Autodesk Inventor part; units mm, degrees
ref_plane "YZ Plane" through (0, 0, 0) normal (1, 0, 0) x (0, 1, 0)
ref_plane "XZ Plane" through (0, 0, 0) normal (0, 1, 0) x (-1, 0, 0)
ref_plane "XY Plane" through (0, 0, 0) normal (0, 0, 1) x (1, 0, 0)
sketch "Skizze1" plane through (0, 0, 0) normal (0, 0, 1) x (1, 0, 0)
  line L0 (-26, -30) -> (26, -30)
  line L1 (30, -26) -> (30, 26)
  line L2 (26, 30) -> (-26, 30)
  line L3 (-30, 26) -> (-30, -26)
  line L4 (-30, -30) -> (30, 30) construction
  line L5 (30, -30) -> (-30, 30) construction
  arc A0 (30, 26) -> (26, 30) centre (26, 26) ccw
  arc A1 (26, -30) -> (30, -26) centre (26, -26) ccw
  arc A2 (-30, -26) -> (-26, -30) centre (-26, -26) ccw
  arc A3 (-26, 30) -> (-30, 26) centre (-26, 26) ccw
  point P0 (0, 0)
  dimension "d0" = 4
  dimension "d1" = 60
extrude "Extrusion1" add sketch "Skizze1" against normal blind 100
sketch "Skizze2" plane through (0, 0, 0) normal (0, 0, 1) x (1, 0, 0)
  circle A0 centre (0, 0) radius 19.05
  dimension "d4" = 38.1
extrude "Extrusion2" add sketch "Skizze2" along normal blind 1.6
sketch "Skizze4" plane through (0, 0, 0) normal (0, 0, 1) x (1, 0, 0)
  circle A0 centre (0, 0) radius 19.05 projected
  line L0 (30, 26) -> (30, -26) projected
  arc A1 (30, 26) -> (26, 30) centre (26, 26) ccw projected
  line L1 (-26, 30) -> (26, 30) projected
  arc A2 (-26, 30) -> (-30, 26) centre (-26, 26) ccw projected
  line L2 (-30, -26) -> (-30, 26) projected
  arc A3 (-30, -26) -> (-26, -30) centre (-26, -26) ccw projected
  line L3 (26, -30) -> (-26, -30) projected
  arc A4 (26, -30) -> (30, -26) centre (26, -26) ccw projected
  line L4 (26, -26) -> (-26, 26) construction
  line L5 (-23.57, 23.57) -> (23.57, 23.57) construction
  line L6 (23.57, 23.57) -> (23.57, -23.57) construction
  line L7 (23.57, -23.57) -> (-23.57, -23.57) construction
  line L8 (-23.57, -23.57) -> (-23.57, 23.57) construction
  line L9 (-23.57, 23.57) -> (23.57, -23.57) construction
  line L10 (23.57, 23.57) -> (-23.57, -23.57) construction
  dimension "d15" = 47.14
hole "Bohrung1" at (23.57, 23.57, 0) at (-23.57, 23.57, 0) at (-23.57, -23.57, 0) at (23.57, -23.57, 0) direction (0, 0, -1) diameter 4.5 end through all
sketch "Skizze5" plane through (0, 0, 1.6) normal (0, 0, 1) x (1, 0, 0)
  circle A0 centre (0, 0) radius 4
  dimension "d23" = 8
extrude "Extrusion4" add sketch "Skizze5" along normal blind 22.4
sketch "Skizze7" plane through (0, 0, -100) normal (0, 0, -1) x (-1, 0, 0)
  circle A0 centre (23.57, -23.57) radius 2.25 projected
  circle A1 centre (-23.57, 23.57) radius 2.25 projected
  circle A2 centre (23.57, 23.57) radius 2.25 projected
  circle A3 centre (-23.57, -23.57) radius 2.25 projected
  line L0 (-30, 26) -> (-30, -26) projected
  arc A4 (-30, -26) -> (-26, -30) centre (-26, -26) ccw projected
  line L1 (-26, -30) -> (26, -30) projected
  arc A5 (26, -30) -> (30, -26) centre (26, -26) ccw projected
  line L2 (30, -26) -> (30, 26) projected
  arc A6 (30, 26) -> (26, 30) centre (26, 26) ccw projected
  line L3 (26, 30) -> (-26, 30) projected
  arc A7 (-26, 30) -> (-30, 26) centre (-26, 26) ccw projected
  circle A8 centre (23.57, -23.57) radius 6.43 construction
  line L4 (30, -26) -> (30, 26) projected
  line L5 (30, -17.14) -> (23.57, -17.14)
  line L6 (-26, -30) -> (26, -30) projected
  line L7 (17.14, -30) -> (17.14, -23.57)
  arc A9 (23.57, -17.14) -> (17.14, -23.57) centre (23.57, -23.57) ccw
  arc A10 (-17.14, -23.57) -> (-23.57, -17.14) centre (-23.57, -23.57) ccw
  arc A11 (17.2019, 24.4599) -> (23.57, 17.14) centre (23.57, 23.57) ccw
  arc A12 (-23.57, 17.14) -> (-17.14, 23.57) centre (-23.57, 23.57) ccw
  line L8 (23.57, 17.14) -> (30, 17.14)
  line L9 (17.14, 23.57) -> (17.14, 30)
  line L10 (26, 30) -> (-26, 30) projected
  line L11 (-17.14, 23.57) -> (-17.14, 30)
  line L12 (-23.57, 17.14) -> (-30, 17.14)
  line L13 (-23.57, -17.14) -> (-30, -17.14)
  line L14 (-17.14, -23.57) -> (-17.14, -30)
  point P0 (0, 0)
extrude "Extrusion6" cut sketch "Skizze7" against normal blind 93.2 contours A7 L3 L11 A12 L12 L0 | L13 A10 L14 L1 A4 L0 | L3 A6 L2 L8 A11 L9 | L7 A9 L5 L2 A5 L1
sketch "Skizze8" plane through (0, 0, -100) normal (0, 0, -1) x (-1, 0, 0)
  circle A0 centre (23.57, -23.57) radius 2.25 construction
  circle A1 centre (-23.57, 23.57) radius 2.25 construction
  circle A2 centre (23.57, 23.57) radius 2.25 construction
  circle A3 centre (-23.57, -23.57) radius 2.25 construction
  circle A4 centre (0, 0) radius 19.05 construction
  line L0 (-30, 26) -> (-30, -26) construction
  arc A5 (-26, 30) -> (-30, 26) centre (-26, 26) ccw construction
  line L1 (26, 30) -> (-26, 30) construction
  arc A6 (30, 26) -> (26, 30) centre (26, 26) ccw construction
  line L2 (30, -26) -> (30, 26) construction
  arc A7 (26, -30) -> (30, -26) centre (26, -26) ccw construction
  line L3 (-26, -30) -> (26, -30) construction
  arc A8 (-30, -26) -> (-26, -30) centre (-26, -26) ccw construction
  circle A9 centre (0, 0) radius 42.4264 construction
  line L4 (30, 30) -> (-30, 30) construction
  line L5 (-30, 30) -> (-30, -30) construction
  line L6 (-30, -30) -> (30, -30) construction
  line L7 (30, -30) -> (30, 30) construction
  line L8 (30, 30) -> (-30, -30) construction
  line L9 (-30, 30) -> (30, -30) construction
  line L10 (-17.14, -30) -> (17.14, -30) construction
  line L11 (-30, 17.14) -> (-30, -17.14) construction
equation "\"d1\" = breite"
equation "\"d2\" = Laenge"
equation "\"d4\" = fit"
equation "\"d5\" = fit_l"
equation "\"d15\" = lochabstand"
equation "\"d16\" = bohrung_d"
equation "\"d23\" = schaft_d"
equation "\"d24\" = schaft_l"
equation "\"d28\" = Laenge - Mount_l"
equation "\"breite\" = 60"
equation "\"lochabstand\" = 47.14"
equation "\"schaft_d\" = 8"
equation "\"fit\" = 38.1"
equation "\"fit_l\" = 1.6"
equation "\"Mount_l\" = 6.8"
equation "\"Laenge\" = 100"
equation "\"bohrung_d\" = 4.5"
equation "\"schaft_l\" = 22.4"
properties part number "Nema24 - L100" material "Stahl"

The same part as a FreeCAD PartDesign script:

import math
import FreeCAD as App
import Part
import Sketcher

V = App.Vector

doc = App.newDocument("Part")
params = doc.addObject("Spreadsheet::Sheet", "Params")
for row, (alias, value) in enumerate([
    ("sketch1_radius", "4 mm"),
    ("sketch1_width", "52 mm"),
    ("pad1_length", "100 mm"),
    ("sketch2_diameter", "38.1 mm"),
    ("pad2_length", "1.6 mm"),
    ("sketch3_diameter", "4.5 mm"),
    ("hole_diameter", "4.5 mm"),
    ("sketch4_diameter", "8 mm"),
    ("pad3_length", "22.4 mm"),
    ("sketch5_radius", "4 mm"),
    ("sketch5_diameter", "4.5 mm"),
    ("sketch5_radius2", "6.43 mm"),
    ("sketch5_width", "6.43 mm"),
    ("pocket1_length", "93.2 mm"),
], start=1):
    params.set(f"A{row}", alias)
    params.set(f"B{row}", "=" + value)
    params.setAlias(f"B{row}", alias)

body = doc.addObject("PartDesign::Body", "Body")

# Sketch on XY plane
sketch1 = body.newObject("Sketcher::SketchObject", "Sketch")
sketch1.AttachmentSupport = (doc.getObject("XY_Plane"), [""])
sketch1.MapMode = "FlatFace"
sketch1.addGeometry([
    Part.ArcOfCircle(Part.Circle(V(-26, -26, 0), V(0, 0, 1), 4), math.radians(180), math.radians(270)),  # 0
    Part.LineSegment(V(-26, -30, 0), V(26, -30, 0)),  # 1
    Part.ArcOfCircle(Part.Circle(V(26, -26, 0), V(0, 0, 1), 4), math.radians(-90), math.radians(0)),  # 2
    Part.LineSegment(V(30, -26, 0), V(30, 26, 0)),  # 3
    Part.ArcOfCircle(Part.Circle(V(26, 26, 0), V(0, 0, 1), 4), math.radians(0), math.radians(90)),  # 4
    Part.LineSegment(V(26, 30, 0), V(-26, 30, 0)),  # 5
    Part.ArcOfCircle(Part.Circle(V(-26, 26, 0), V(0, 0, 1), 4), math.radians(90), math.radians(180)),  # 6
    Part.LineSegment(V(-30, 26, 0), V(-30, -26, 0)),  # 7
], False)
sketch1.addConstraint([
    Sketcher.Constraint("Tangent", 0, 2, 1, 1),
    Sketcher.Constraint("Tangent", 1, 2, 2, 1),
    Sketcher.Constraint("Tangent", 2, 2, 3, 1),
    Sketcher.Constraint("Tangent", 3, 2, 4, 1),
    Sketcher.Constraint("Tangent", 4, 2, 5, 1),
    Sketcher.Constraint("Tangent", 5, 2, 6, 1),
    Sketcher.Constraint("Tangent", 6, 2, 7, 1),
    Sketcher.Constraint("Tangent", 7, 2, 0, 1),
    Sketcher.Constraint("Horizontal", 1),
    Sketcher.Constraint("Vertical", 3),
    Sketcher.Constraint("Horizontal", 5),
    Sketcher.Constraint("Vertical", 7),
    Sketcher.Constraint("Equal", 0, 2),
    Sketcher.Constraint("Equal", 2, 4),
    Sketcher.Constraint("Equal", 4, 6),
    Sketcher.Constraint("Symmetric", 0, 3, 4, 3, -1, 1),
    Sketcher.Constraint("Equal", 5, 3),
    Sketcher.Constraint("Radius", 0, 4.0),
    Sketcher.Constraint("DistanceX", 1, 1, 1, 2, 52.0),
])
sketch1.setExpression("Constraints[17]", "Params.sketch1_radius")
sketch1.setExpression("Constraints[18]", "Params.sketch1_width")
pad1 = body.newObject("PartDesign::Pad", "Pad")
pad1.Profile = sketch1
pad1.setExpression("Length", "Params.pad1_length")
pad1.Reversed = True

# Sketch on XY plane
sketch2 = body.newObject("Sketcher::SketchObject", "Sketch001")
sketch2.AttachmentSupport = (doc.getObject("XY_Plane"), [""])
sketch2.MapMode = "FlatFace"
sketch2.addGeometry(Part.Circle(V(0, 0, 0), V(0, 0, 1), 19), False)
sketch2.addConstraint([
    Sketcher.Constraint("Coincident", 0, 3, -1, 1),
    Sketcher.Constraint("Diameter", 0, 38.1),
])
sketch2.setExpression("Constraints[1]", "Params.sketch2_diameter")
pad2 = body.newObject("PartDesign::Pad", "Pad001")
pad2.Profile = sketch2
pad2.setExpression("Length", "Params.pad2_length")

# Sketch on XY plane
sketch3 = body.newObject("Sketcher::SketchObject", "Sketch002")
sketch3.AttachmentSupport = (doc.getObject("XY_Plane"), [""])
sketch3.MapMode = "FlatFace"
sketch3.addGeometry([
    Part.Circle(V(23.6, 23.6, 0), V(0, 0, 1), 2.2),
    Part.Circle(V(-23.6, 23.6, 0), V(0, 0, 1), 2.2),
    Part.Circle(V(-23.6, -23.6, 0), V(0, 0, 1), 2.2),
    Part.Circle(V(23.6, -23.6, 0), V(0, 0, 1), 2.2),
], False)
sketch3.addConstraint([
    Sketcher.Constraint("Equal", 0, 1),
    Sketcher.Constraint("Equal", 1, 2),
    Sketcher.Constraint("Equal", 2, 3),
    Sketcher.Constraint("Symmetric", 0, 3, 2, 3, -1, 1),
    Sketcher.Constraint("Symmetric", 1, 3, 3, 3, -1, 1),
    Sketcher.Constraint("Symmetric", 0, 3, 1, 3, -2),
    Sketcher.Constraint("Diameter", 0, 4.5),
    Sketcher.Constraint("DistanceX", -1, 1, 0, 3, 23.57),
    Sketcher.Constraint("DistanceY", -1, 1, 0, 3, 23.57),
])
sketch3.setExpression("Constraints[6]", "Params.sketch3_diameter")
doc.recompute()
hole = body.newObject("PartDesign::Hole", "Hole")
hole.Profile = sketch3
hole.ThreadType = "None"
hole.setExpression("Diameter", "Params.hole_diameter")
hole.DepthType = "ThroughAll"

# Sketch on XY plane
sketch4 = body.newObject("Sketcher::SketchObject", "Sketch003")
sketch4.AttachmentSupport = (doc.getObject("XY_Plane"), [""])
sketch4.MapMode = "FlatFace"
sketch4.AttachmentOffset = App.Placement(V(0, 0, 1.6), App.Rotation())
sketch4.addGeometry(Part.Circle(V(0, 0, 0), V(0, 0, 1), 4), False)
sketch4.addConstraint([
    Sketcher.Constraint("Coincident", 0, 3, -1, 1),
    Sketcher.Constraint("Diameter", 0, 8.0),
])
sketch4.setExpression("Constraints[1]", "Params.sketch4_diameter")
pad3 = body.newObject("PartDesign::Pad", "Pad002")
pad3.Profile = sketch4
pad3.setExpression("Length", "Params.pad3_length")

# Sketch on XY plane
sketch5 = body.newObject("Sketcher::SketchObject", "Sketch004")
sketch5.AttachmentSupport = (doc.getObject("XY_Plane"), [""])
sketch5.MapMode = "FlatFace"
sketch5.AttachmentOffset = App.Placement(V(0, 0, -100), App.Rotation())
sketch5.addGeometry([
    Part.ArcOfCircle(Part.Circle(V(26, 26, 0), V(0, 0, 1), 4), math.radians(0), math.radians(90)),  # 0
    Part.LineSegment(V(30, 26, 0), V(30, 17.1, 0)),  # 1
    Part.LineSegment(V(30, 17.1, 0), V(23.6, 17.1, 0)),  # 2
    Part.ArcOfCircle(Part.Circle(V(23.6, 23.6, 0), V(0, 0, 1), 6.4), math.radians(180), math.radians(270)),  # 3
    Part.LineSegment(V(17.1, 23.6, 0), V(17.1, 30, 0)),  # 4
    Part.LineSegment(V(17.1, 30, 0), V(26, 30, 0)),  # 5
    Part.Circle(V(23.6, 23.6, 0), V(0, 0, 1), 2.2),  # 6
    Part.LineSegment(V(23.6, -17.1, 0), V(30, -17.1, 0)),  # 7
    Part.LineSegment(V(30, -17.1, 0), V(30, -26, 0)),  # 8
    Part.ArcOfCircle(Part.Circle(V(26, -26, 0), V(0, 0, 1), 4), math.radians(-90), math.radians(0)),  # 9
    Part.LineSegment(V(26, -30, 0), V(17.1, -30, 0)),  # 10
    Part.LineSegment(V(17.1, -30, 0), V(17.1, -23.6, 0)),  # 11
    Part.ArcOfCircle(Part.Circle(V(23.6, -23.6, 0), V(0, 0, 1), 6.4), math.radians(90), math.radians(180)),  # 12
    Part.Circle(V(23.6, -23.6, 0), V(0, 0, 1), 2.2),  # 13
    Part.LineSegment(V(-26, 30, 0), V(-17.1, 30, 0)),  # 14
    Part.LineSegment(V(-17.1, 30, 0), V(-17.1, 23.6, 0)),  # 15
    Part.ArcOfCircle(Part.Circle(V(-23.6, 23.6, 0), V(0, 0, 1), 6.4), math.radians(-90), math.radians(0)),  # 16
    Part.LineSegment(V(-23.6, 17.1, 0), V(-30, 17.1, 0)),  # 17
    Part.LineSegment(V(-30, 17.1, 0), V(-30, 26, 0)),  # 18
    Part.ArcOfCircle(Part.Circle(V(-26, 26, 0), V(0, 0, 1), 4), math.radians(90), math.radians(180)),  # 19
    Part.Circle(V(-23.6, 23.6, 0), V(0, 0, 1), 2.2),  # 20
    Part.LineSegment(V(-17.1, -23.6, 0), V(-17.1, -30, 0)),  # 21
    Part.LineSegment(V(-17.1, -30, 0), V(-26, -30, 0)),  # 22
    Part.ArcOfCircle(Part.Circle(V(-26, -26, 0), V(0, 0, 1), 4), math.radians(180), math.radians(270)),  # 23
    Part.LineSegment(V(-30, -26, 0), V(-30, -17.1, 0)),  # 24
    Part.LineSegment(V(-30, -17.1, 0), V(-23.6, -17.1, 0)),  # 25
    Part.ArcOfCircle(Part.Circle(V(-23.6, -23.6, 0), V(0, 0, 1), 6.4), math.radians(0), math.radians(90)),  # 26
    Part.Circle(V(-23.6, -23.6, 0), V(0, 0, 1), 2.2),  # 27
], False)
sketch5.addConstraint([
    Sketcher.Constraint("Tangent", 0, 1, 1, 1),
    Sketcher.Constraint("Coincident", 1, 2, 2, 1),
    Sketcher.Constraint("Tangent", 2, 2, 3, 2),
    Sketcher.Constraint("Tangent", 3, 1, 4, 1),
    Sketcher.Constraint("Coincident", 4, 2, 5, 1),
    Sketcher.Constraint("Tangent", 5, 2, 0, 2),
    Sketcher.Constraint("Coincident", 7, 2, 8, 1),
    Sketcher.Constraint("Tangent", 8, 2, 9, 2),
    Sketcher.Constraint("Tangent", 9, 1, 10, 1),
    Sketcher.Constraint("Coincident", 10, 2, 11, 1),
    Sketcher.Constraint("Tangent", 11, 2, 12, 2),
    Sketcher.Constraint("Tangent", 12, 1, 7, 1),
    Sketcher.Constraint("Coincident", 14, 2, 15, 1),
    Sketcher.Constraint("Tangent", 15, 2, 16, 2),
    Sketcher.Constraint("Tangent", 16, 1, 17, 1),
    Sketcher.Constraint("Coincident", 17, 2, 18, 1),
    Sketcher.Constraint("Tangent", 18, 2, 19, 2),
    Sketcher.Constraint("Tangent", 19, 1, 14, 1),
    Sketcher.Constraint("Coincident", 21, 2, 22, 1),
    Sketcher.Constraint("Tangent", 22, 2, 23, 2),
    Sketcher.Constraint("Tangent", 23, 1, 24, 1),
    Sketcher.Constraint("Coincident", 24, 2, 25, 1),
    Sketcher.Constraint("Tangent", 25, 2, 26, 2),
    Sketcher.Constraint("Tangent", 26, 1, 21, 1),
    Sketcher.Constraint("Vertical", 1),
    Sketcher.Constraint("Horizontal", 2),
    Sketcher.Constraint("Vertical", 4),
    Sketcher.Constraint("Horizontal", 5),
    Sketcher.Constraint("Horizontal", 7),
    Sketcher.Constraint("Vertical", 8),
    Sketcher.Constraint("Horizontal", 10),
    Sketcher.Constraint("Vertical", 11),
    Sketcher.Constraint("Horizontal", 14),
    Sketcher.Constraint("Vertical", 15),
    Sketcher.Constraint("Horizontal", 17),
    Sketcher.Constraint("Vertical", 18),
    Sketcher.Constraint("Vertical", 21),
    Sketcher.Constraint("Horizontal", 22),
    Sketcher.Constraint("Vertical", 24),
    Sketcher.Constraint("Horizontal", 25),
    Sketcher.Constraint("Coincident", 6, 3, 3, 3),
    Sketcher.Constraint("Coincident", 13, 3, 12, 3),
    Sketcher.Constraint("Coincident", 20, 3, 16, 3),
    Sketcher.Constraint("Coincident", 27, 3, 26, 3),
    Sketcher.Constraint("Equal", 0, 9),
    Sketcher.Constraint("Equal", 3, 12),
    Sketcher.Constraint("Equal", 6, 13),
    Sketcher.Constraint("Equal", 12, 16),
    Sketcher.Constraint("Equal", 9, 19),
    Sketcher.Constraint("Equal", 13, 20),
    Sketcher.Constraint("Equal", 19, 23),
    Sketcher.Constraint("Equal", 16, 26),
    Sketcher.Constraint("Equal", 20, 27),
    Sketcher.Constraint("Symmetric", 12, 3, 16, 3, -1, 1),
    Sketcher.Constraint("Symmetric", 9, 3, 19, 3, -1, 1),
    Sketcher.Constraint("Symmetric", 0, 3, 23, 3, -1, 1),
    Sketcher.Constraint("Symmetric", 3, 3, 26, 3, -1, 1),
    Sketcher.Constraint("Symmetric", 3, 3, 16, 3, -2),
    Sketcher.Constraint("Symmetric", 0, 3, 19, 3, -2),
    Sketcher.Constraint("Equal", 22, 1),
    Sketcher.Constraint("Radius", 0, 4.0),
    Sketcher.Constraint("Diameter", 6, 4.5),
    Sketcher.Constraint("Radius", 3, 6.43),
    Sketcher.Constraint("DistanceX", -1, 1, 0, 3, 26.0),
    Sketcher.Constraint("DistanceY", -1, 1, 0, 3, 26.0),
    Sketcher.Constraint("DistanceX", 2, 2, 2, 1, 6.43),
])
sketch5.setExpression("Constraints[60]", "Params.sketch5_radius")
sketch5.setExpression("Constraints[61]", "Params.sketch5_diameter")
sketch5.setExpression("Constraints[62]", "Params.sketch5_radius2")
sketch5.setExpression("Constraints[65]", "Params.sketch5_width")
pocket1 = body.newObject("PartDesign::Pocket", "Pocket")
pocket1.Profile = sketch5
pocket1.setExpression("Length", "Params.pocket1_length")
pocket1.Reversed = True

doc.recompute()
